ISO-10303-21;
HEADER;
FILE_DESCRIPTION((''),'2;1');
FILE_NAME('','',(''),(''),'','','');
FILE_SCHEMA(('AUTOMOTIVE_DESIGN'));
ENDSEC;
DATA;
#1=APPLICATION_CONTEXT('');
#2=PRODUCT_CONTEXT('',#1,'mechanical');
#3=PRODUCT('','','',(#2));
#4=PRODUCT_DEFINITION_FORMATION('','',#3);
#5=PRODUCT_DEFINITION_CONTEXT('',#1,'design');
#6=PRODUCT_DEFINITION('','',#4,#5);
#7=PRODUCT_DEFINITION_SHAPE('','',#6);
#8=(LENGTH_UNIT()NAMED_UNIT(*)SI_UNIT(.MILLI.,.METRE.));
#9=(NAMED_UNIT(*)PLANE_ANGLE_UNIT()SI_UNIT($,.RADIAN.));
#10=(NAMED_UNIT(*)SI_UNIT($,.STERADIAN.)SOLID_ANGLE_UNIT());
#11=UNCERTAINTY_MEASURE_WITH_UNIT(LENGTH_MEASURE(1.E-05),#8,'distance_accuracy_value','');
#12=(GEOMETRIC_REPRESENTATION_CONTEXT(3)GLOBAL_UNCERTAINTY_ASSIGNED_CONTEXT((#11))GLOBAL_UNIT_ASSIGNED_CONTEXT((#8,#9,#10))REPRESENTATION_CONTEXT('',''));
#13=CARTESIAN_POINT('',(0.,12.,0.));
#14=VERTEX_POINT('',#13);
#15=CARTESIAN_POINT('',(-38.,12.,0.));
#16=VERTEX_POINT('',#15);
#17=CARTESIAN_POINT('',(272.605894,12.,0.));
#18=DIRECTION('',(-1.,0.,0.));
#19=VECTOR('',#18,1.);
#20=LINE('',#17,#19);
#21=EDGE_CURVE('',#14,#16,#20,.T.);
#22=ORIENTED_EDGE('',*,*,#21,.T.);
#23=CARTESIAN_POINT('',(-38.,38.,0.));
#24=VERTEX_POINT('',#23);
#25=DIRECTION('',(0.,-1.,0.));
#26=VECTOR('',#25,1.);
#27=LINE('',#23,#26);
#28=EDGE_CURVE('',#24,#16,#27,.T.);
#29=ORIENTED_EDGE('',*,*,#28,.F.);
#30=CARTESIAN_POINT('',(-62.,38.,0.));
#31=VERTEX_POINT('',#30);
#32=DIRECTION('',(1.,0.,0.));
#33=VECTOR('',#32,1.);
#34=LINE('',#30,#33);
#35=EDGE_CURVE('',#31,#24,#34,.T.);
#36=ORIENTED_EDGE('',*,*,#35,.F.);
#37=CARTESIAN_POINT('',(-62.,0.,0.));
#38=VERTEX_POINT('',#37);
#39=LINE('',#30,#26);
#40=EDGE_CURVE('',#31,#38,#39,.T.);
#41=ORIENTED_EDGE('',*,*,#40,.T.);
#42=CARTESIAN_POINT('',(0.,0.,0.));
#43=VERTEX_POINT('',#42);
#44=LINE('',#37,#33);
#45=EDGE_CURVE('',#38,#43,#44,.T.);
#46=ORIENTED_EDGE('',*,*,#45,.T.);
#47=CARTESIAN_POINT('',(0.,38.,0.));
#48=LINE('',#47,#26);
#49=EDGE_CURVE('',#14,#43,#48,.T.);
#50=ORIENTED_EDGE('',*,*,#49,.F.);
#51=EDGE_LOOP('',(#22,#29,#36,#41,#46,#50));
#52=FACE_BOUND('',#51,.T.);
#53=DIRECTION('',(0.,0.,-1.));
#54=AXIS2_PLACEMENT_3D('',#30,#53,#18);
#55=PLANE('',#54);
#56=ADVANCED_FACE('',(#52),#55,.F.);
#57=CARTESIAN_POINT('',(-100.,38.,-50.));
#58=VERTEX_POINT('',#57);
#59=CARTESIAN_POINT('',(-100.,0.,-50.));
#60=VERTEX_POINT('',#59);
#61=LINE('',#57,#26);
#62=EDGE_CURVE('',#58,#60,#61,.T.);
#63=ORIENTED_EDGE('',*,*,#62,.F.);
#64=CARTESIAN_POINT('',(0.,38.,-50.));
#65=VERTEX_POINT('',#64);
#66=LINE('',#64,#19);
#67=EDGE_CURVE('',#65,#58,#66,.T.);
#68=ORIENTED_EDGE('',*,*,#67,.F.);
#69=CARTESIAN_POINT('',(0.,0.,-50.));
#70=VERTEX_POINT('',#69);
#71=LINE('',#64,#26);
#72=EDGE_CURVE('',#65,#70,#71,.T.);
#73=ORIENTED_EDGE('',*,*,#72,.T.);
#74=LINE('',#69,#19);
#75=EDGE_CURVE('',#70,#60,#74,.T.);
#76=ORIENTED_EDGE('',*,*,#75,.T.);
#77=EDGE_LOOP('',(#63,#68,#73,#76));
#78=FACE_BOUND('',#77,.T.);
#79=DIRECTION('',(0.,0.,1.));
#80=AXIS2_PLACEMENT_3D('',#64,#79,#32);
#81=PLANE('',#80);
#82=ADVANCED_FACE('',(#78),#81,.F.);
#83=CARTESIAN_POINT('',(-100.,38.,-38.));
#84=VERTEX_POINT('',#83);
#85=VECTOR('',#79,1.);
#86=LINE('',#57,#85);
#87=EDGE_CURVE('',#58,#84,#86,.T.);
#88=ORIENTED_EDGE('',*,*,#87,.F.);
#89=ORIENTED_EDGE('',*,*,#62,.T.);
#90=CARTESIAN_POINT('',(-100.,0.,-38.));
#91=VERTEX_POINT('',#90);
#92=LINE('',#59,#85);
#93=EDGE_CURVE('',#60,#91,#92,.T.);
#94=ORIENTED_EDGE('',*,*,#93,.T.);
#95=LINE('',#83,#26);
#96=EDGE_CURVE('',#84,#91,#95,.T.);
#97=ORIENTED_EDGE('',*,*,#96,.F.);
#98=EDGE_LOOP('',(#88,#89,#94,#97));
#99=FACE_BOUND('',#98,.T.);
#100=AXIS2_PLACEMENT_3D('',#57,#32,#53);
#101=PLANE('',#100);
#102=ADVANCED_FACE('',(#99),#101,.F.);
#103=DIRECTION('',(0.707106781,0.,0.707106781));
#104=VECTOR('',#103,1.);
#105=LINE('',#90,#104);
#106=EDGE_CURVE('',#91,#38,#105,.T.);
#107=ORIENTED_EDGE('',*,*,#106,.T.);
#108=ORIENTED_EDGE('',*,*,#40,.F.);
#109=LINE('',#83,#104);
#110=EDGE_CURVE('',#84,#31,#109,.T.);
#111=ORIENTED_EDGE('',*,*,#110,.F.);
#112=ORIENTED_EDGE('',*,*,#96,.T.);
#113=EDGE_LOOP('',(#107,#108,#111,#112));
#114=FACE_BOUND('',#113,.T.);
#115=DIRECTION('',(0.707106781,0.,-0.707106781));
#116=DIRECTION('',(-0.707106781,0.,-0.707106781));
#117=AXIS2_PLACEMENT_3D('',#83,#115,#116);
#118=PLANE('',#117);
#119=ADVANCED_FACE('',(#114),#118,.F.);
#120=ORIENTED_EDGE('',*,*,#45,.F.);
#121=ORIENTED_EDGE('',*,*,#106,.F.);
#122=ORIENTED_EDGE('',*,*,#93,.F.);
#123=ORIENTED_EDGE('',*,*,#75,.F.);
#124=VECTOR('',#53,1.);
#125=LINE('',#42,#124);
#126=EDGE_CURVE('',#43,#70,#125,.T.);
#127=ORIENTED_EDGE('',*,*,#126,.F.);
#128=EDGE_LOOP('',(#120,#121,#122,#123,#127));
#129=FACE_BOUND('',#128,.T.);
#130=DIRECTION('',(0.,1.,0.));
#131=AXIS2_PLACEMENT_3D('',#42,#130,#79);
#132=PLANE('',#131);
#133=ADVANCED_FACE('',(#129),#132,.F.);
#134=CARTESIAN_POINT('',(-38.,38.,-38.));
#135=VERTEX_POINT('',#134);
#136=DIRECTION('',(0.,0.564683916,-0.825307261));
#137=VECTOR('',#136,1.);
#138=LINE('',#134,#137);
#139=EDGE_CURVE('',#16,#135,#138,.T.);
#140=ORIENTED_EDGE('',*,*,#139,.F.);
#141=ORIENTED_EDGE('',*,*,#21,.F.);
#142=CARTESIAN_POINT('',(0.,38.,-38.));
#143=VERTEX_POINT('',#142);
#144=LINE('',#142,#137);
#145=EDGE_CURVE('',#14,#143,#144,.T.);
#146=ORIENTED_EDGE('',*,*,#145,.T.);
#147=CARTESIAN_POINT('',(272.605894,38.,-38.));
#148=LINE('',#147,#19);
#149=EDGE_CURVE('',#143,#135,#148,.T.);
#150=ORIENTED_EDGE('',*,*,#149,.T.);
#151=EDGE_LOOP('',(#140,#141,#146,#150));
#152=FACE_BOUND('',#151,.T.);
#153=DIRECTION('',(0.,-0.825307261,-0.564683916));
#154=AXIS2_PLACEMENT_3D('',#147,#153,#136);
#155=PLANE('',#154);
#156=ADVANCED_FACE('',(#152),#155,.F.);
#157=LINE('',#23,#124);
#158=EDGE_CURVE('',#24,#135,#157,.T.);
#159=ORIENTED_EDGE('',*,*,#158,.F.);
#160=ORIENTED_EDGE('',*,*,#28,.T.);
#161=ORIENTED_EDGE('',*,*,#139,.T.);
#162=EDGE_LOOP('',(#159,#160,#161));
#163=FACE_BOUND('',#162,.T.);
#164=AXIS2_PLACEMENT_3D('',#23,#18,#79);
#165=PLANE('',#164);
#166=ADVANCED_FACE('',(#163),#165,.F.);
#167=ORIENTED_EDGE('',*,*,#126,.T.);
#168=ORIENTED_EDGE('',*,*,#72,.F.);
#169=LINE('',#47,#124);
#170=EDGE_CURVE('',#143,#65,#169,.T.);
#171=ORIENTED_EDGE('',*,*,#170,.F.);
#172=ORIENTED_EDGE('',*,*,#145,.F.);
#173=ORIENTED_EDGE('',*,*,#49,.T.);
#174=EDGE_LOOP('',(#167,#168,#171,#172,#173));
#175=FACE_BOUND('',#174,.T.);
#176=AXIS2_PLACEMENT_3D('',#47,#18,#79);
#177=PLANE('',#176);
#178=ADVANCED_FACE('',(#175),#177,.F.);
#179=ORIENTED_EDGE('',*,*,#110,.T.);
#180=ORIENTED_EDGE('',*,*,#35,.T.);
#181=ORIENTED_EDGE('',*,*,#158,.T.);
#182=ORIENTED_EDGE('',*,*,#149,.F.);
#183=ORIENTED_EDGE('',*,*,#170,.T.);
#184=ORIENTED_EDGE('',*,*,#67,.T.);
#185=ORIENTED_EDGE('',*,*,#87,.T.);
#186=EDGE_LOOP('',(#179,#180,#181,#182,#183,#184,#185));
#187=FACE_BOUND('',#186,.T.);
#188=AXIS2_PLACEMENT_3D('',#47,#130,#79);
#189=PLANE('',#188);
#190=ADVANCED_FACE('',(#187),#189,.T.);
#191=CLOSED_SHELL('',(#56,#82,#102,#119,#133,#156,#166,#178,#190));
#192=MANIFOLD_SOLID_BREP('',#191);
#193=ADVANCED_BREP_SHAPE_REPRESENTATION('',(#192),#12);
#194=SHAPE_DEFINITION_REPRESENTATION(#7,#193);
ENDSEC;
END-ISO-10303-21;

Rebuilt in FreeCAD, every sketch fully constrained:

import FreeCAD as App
import Part
import Sketcher
Q = App.Units.Quantity

doc = App.newDocument("Part")
body = doc.addObject("PartDesign::Body", "Body")

sketch1 = body.newObject("Sketcher::SketchObject", "Sketch")
sketch1.AttachmentSupport = (doc.getObject("XZ_Plane"), [""])
sketch1.MapMode = "FlatFace"
sketch1.addGeometry(Part.LineSegment(App.Vector(-100, -50, 0), App.Vector(-100, -38, 0)), False)
sketch1.addGeometry(Part.LineSegment(App.Vector(-100, -38, 0), App.Vector(-62, 0, 0)), False)
sketch1.addGeometry(Part.LineSegment(App.Vector(-62, 0, 0), App.Vector(0, 0, 0)), False)
sketch1.addGeometry(Part.LineSegment(App.Vector(0, 0, 0), App.Vector(0, -50, 0)), False)
sketch1.addGeometry(Part.LineSegment(App.Vector(0, -50, 0), App.Vector(-100, -50, 0)), False)
sketch1.addConstraint(Sketcher.Constraint("Coincident", 0, 2, 1, 1))
sketch1.addConstraint(Sketcher.Constraint("Coincident", 1, 2, 2, 1))
sketch1.addConstraint(Sketcher.Constraint("Coincident", 2, 2, 3, 1))
sketch1.addConstraint(Sketcher.Constraint("Coincident", 3, 2, 4, 1))
sketch1.addConstraint(Sketcher.Constraint("Coincident", 4, 2, 0, 1))
sketch1.addConstraint(Sketcher.Constraint("Vertical", 0))
sketch1.addConstraint(Sketcher.Constraint("Horizontal", 2))
sketch1.addConstraint(Sketcher.Constraint("Vertical", 3))
sketch1.addConstraint(Sketcher.Constraint("Horizontal", 4))
sketch1.addConstraint(Sketcher.Constraint("Coincident", 2, 2, -1, 1))
sketch1.addConstraint(Sketcher.Constraint("DistanceX", 2, 1, 2, 2, Q("62 mm")))
sketch1.addConstraint(Sketcher.Constraint("DistanceX", 4, 2, 4, 1, Q("100 mm")))
sketch1.addConstraint(Sketcher.Constraint("DistanceY", 0, 1, 0, 2, Q("12 mm")))
sketch1.addConstraint(Sketcher.Constraint("DistanceY", 3, 2, 3, 1, Q("50 mm")))
pad1 = body.newObject("PartDesign::Pad", "Pad")
pad1.Profile = sketch1
pad1.Length = 38
pad1.Reversed = True

sketch2 = body.newObject("Sketcher::SketchObject", "Sketch001")
sketch2.AttachmentSupport = (doc.getObject("YZ_Plane"), [""])
sketch2.MapMode = "FlatFace"
sketch2.addGeometry(Part.LineSegment(App.Vector(38, -38, 0), App.Vector(107, -139, 0)), False)
sketch2.addGeometry(Part.LineSegment(App.Vector(107, -139, 0), App.Vector(310, -1, 0)), False)
sketch2.addGeometry(Part.LineSegment(App.Vector(310, -1, 0), App.Vector(145, 240, 0)), False)
sketch2.addGeometry(Part.LineSegment(App.Vector(145, 240, 0), App.Vector(-57, 101, 0)), False)
sketch2.addGeometry(Part.LineSegment(App.Vector(-57, 101, 0), App.Vector(12, 0, 0)), False)
sketch2.addGeometry(Part.LineSegment(App.Vector(12, 0, 0), App.Vector(38, -38, 0)), False)
sketch2.addConstraint(Sketcher.Constraint("Coincident", 0, 2, 1, 1))
sketch2.addConstraint(Sketcher.Constraint("Coincident", 1, 2, 2, 1))
sketch2.addConstraint(Sketcher.Constraint("Coincident", 2, 2, 3, 1))
sketch2.addConstraint(Sketcher.Constraint("Coincident", 3, 2, 4, 1))
sketch2.addConstraint(Sketcher.Constraint("Coincident", 4, 2, 5, 1))
sketch2.addConstraint(Sketcher.Constraint("Coincident", 5, 2, 0, 1))
sketch2.addConstraint(Sketcher.Constraint("PointOnObject", 4, 2, -1))
sketch2.addConstraint(Sketcher.Constraint("Perpendicular", 0, 1))
sketch2.addConstraint(Sketcher.Constraint("Perpendicular", 1, 2))
sketch2.addConstraint(Sketcher.Constraint("Perpendicular", 2, 3))
sketch2.addConstraint(Sketcher.Constraint("Perpendicular", 3, 4))
sketch2.addConstraint(Sketcher.Constraint("Parallel", 4, 5))
sketch2.addConstraint(Sketcher.Constraint("Equal", 0, 4))
sketch2.addConstraint(Sketcher.Constraint("DistanceX", -1, 1, 4, 2, Q("12 mm")))
sketch2.addConstraint(Sketcher.Constraint("DistanceX", -1, 1, 5, 2, Q("38 mm")))
sketch2.addConstraint(Sketcher.Constraint("DistanceY", 5, 2, -1, 1, Q("38 mm")))
sketch2.addConstraint(Sketcher.Constraint("DistanceX", -1, 1, 1, 2, Q("309.843752 mm")))
sketch2.addConstraint(Sketcher.Constraint("DistanceX", -1, 1, 2, 2, Q("145.256741 mm")))
pocket1 = body.newObject("PartDesign::Pocket", "Pocket")
pocket1.Profile = sketch2
pocket1.Type = "TwoLengths"
pocket1.Length = 119.084715
pocket1.Length2 = 38
pocket1.Reversed = True

doc.recompute()
